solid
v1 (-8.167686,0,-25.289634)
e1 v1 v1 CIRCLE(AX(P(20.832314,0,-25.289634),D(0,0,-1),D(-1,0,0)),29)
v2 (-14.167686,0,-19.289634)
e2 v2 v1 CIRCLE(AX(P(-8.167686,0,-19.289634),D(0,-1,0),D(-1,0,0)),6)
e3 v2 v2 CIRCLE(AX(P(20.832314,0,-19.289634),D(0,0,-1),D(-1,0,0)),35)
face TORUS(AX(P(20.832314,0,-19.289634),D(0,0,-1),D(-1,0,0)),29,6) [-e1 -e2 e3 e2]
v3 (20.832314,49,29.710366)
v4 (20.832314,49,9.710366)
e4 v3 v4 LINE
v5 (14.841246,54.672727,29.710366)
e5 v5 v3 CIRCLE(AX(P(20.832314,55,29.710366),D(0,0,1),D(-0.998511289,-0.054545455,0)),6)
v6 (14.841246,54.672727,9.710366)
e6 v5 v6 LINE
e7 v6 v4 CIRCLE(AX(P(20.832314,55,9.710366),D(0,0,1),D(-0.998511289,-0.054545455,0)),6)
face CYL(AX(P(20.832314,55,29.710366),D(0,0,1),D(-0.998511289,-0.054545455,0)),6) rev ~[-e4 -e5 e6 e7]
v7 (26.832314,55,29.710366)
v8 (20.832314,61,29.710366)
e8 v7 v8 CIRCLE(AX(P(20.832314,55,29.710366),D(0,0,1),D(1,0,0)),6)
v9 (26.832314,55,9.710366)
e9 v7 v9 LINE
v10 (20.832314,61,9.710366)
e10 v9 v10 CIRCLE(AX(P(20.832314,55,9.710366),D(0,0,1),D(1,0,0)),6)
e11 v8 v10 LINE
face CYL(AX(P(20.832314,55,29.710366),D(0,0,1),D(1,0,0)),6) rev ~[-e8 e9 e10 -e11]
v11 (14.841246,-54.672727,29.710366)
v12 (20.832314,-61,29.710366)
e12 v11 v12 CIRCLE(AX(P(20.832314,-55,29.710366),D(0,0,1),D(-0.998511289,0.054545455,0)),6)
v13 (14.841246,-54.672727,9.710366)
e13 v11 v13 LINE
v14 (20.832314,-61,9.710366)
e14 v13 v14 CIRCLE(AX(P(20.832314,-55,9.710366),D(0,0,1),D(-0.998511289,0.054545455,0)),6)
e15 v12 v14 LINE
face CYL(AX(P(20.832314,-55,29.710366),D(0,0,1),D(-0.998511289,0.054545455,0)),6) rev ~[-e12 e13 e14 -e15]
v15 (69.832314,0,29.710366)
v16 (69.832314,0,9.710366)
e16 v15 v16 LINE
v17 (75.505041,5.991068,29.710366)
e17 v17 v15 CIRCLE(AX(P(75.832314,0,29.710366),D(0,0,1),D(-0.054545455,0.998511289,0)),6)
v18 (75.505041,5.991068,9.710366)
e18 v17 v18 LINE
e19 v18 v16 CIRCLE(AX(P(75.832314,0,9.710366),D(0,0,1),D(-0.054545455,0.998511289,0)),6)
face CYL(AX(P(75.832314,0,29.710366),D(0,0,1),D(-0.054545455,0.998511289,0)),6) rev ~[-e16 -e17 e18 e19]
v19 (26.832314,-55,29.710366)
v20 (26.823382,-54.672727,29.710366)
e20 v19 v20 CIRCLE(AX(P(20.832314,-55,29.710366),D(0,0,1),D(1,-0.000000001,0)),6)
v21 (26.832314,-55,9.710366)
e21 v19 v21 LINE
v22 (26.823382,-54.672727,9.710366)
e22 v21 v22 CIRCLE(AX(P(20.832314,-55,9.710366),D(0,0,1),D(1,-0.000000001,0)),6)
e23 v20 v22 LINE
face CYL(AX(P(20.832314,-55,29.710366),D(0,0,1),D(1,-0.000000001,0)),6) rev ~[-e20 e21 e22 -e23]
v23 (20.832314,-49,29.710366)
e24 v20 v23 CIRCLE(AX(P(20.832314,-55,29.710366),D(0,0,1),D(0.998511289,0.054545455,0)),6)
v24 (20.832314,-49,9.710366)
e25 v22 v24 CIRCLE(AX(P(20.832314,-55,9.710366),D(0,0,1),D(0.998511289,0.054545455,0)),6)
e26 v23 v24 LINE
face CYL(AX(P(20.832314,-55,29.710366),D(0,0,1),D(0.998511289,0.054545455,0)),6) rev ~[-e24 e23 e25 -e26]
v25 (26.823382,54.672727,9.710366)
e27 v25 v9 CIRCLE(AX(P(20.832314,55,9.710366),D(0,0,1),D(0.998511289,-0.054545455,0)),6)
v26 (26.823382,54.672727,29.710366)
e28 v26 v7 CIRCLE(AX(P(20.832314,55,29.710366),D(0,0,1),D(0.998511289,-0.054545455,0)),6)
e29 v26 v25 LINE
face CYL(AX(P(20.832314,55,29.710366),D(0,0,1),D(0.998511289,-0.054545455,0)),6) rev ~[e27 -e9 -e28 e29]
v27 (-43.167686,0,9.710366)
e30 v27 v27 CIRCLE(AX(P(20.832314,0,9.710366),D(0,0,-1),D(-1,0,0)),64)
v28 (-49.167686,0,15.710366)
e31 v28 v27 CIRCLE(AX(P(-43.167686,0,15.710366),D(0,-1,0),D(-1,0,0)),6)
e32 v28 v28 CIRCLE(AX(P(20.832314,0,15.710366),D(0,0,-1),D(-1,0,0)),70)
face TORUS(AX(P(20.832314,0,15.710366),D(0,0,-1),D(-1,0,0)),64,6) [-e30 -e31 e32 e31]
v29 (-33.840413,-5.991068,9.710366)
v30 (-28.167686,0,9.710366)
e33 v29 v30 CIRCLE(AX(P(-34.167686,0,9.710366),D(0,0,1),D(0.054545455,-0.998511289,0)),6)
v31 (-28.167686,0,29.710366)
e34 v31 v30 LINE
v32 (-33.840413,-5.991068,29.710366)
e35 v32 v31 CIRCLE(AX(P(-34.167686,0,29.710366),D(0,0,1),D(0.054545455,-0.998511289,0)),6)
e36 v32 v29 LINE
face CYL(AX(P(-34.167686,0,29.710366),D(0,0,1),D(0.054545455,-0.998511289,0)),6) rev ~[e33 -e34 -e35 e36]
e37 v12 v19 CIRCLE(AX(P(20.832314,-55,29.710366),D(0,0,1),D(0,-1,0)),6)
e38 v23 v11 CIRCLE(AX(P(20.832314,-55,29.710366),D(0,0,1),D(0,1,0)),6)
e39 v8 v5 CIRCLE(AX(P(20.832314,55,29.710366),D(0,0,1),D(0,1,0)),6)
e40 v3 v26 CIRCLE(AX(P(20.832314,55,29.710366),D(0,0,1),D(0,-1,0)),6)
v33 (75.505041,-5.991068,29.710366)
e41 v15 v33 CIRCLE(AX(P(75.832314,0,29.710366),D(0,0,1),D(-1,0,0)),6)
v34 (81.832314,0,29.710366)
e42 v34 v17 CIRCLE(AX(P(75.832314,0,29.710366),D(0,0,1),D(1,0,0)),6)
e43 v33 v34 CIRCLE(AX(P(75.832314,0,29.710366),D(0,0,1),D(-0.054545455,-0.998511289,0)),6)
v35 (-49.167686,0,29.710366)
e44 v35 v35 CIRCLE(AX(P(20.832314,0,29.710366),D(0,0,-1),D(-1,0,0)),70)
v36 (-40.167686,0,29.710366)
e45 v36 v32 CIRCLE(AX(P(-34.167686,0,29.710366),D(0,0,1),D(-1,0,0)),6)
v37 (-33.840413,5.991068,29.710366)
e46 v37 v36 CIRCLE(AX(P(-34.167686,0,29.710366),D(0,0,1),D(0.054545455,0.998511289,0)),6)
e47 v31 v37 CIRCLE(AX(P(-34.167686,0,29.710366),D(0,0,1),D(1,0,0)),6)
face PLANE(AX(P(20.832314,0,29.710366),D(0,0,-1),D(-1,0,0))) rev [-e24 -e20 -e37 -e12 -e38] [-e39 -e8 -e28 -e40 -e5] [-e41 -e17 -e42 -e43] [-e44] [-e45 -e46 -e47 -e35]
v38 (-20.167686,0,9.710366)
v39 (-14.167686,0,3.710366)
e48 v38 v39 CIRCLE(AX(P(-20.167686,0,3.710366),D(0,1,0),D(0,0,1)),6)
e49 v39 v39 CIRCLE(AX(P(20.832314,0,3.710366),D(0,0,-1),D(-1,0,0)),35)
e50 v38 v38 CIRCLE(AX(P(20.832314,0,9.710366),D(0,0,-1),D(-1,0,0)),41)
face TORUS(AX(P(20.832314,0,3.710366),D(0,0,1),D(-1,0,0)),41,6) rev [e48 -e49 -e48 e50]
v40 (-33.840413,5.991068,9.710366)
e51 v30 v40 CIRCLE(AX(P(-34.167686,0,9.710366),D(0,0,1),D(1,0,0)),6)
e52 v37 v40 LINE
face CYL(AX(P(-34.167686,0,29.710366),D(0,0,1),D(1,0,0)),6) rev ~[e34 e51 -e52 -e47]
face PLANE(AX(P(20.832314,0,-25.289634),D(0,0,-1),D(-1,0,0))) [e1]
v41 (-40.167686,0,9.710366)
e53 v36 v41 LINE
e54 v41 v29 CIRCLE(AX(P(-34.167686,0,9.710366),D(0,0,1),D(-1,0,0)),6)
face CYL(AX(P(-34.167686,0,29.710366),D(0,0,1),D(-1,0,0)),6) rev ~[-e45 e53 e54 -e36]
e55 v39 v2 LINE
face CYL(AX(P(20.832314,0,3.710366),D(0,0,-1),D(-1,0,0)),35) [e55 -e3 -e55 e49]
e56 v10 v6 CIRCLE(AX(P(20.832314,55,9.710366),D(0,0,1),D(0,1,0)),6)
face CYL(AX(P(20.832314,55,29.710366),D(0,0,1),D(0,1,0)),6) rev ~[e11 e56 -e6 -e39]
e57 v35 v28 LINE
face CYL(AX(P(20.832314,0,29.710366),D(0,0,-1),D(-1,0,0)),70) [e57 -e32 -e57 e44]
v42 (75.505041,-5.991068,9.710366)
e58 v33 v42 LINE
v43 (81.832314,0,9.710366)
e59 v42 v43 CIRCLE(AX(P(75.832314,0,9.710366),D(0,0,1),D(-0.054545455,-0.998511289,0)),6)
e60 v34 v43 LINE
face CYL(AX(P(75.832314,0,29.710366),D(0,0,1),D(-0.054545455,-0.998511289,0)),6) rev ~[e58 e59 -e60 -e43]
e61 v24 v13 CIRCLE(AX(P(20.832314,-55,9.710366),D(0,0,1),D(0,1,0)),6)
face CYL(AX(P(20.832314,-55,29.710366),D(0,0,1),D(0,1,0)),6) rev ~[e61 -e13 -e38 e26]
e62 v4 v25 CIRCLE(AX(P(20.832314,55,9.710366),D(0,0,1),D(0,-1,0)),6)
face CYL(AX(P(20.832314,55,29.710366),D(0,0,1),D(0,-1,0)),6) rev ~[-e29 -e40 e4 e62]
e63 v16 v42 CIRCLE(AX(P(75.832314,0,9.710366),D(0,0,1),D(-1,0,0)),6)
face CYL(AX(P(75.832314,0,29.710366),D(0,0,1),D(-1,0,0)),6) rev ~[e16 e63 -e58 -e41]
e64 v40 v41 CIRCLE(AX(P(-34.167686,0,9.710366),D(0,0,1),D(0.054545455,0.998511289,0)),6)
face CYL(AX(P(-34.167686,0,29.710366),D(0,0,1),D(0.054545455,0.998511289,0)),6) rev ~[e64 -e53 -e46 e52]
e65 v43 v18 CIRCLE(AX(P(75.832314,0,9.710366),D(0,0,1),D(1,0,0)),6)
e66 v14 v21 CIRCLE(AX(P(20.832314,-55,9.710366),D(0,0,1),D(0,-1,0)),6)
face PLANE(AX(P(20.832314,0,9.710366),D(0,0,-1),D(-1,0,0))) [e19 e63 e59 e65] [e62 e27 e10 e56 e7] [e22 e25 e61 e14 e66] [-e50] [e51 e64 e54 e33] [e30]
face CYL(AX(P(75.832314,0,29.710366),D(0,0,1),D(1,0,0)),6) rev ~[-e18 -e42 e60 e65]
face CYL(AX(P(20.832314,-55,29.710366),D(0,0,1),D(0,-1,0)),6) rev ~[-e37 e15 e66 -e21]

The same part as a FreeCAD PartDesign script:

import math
import FreeCAD as App
import Part
import Sketcher

V = App.Vector
Q = App.Units.Quantity

doc = App.newDocument("Part")
body = doc.addObject("PartDesign::Body", "Body")

sketch1 = body.newObject("Sketcher::SketchObject", "Sketch")
sketch1.AttachmentSupport = (doc.getObject("XZ_Plane"), [""])
sketch1.MapMode = "FlatFace"
sketch1.addGeometry(Part.LineSegment(V(20.832314, 29.710366, 0), V(-49.167686, 29.710366, 0)), False)
sketch1.addGeometry(Part.LineSegment(V(-49.167686, 29.710366, 0), V(-49.167686, 15.710366, 0)), False)
sketch1.addGeometry(Part.ArcOfCircle(Part.Circle(V(-43.167686, 15.710366, 0), V(0, 0, 1), 6), math.radians(180), math.radians(270)), False)
sketch1.addGeometry(Part.LineSegment(V(-43.167686, 9.710366, 0), V(-20.167686, 9.710366, 0)), False)
sketch1.addGeometry(Part.ArcOfCircle(Part.Circle(V(-20.167686, 3.710366, 0), V(0, 0, 1), 6), math.radians(0), math.radians(90)), False)
sketch1.addGeometry(Part.LineSegment(V(-14.167686, 3.710366, 0), V(-14.167686, -19.289634, 0)), False)
sketch1.addGeometry(Part.ArcOfCircle(Part.Circle(V(-8.167686, -19.289634, 0), V(0, 0, 1), 6), math.radians(180), math.radians(270)), False)
sketch1.addGeometry(Part.LineSegment(V(-8.167686, -25.289634, 0), V(20.832314, -25.289634, 0)), False)
sketch1.addGeometry(Part.LineSegment(V(20.832314, -25.289634, 0), V(20.832314, 29.710366, 0)), False)
sketch1.addGeometry(Part.LineSegment(V(20.832314, 29.710366, 0), V(20.832314, -25.289634, 0)), True)
sketch1.addConstraint(Sketcher.Constraint("Coincident", 0, 2, 1, 1))
sketch1.addConstraint(Sketcher.Constraint("Tangent", 1, 2, 2, 1))
sketch1.addConstraint(Sketcher.Constraint("Tangent", 2, 2, 3, 1))
sketch1.addConstraint(Sketcher.Constraint("Tangent", 3, 2, 4, 2))
sketch1.addConstraint(Sketcher.Constraint("Tangent", 4, 1, 5, 1))
sketch1.addConstraint(Sketcher.Constraint("Tangent", 5, 2, 6, 1))
sketch1.addConstraint(Sketcher.Constraint("Tangent", 6, 2, 7, 1))
sketch1.addConstraint(Sketcher.Constraint("Coincident", 7, 2, 8, 1))
sketch1.addConstraint(Sketcher.Constraint("Coincident", 8, 2, 0, 1))
sketch1.addConstraint(Sketcher.Constraint("Horizontal", 0))
sketch1.addConstraint(Sketcher.Constraint("Vertical", 1))
sketch1.addConstraint(Sketcher.Constraint("Horizontal", 3))
sketch1.addConstraint(Sketcher.Constraint("Vertical", 5))
sketch1.addConstraint(Sketcher.Constraint("Horizontal", 7))
sketch1.addConstraint(Sketcher.Constraint("Vertical", 8))
sketch1.addConstraint(Sketcher.Constraint("Vertical", 9))
sketch1.addConstraint(Sketcher.Constraint("Coincident", 9, 1, 8, 2))
sketch1.addConstraint(Sketcher.Constraint("Equal", 2, 4))
sketch1.addConstraint(Sketcher.Constraint("Equal", 4, 6))
sketch1.addConstraint(Sketcher.Constraint("Horizontal", 6, 2, 9, 2))
sketch1.addConstraint(Sketcher.Constraint("Equal", 3, 5))
sketch1.addConstraint(Sketcher.Constraint("Radius", 2, Q("6 mm")))
sketch1.addConstraint(Sketcher.Constraint("DistanceX", 0, 2, 0, 1, Q("70 mm")))
sketch1.addConstraint(Sketcher.Constraint("DistanceX", 3, 1, 3, 2, Q("23 mm")))
sketch1.addConstraint(Sketcher.Constraint("DistanceY", 1, 2, 1, 1, Q("14 mm")))
sketch1.addConstraint(Sketcher.Constraint("DistanceX", 2, 3, -1, 1, Q("43.167686 mm")))
sketch1.addConstraint(Sketcher.Constraint("DistanceY", -1, 1, 2, 3, Q("15.710366 mm")))
revolution = body.newObject("PartDesign::Revolution", "Revolution")
revolution.Profile = sketch1
revolution.ReferenceAxis = (sketch1, ["Axis0"])
revolution.Angle = 360

sketch2 = body.newObject("Sketcher::SketchObject", "Sketch001")
sketch2.AttachmentSupport = (doc.getObject("XY_Plane"), [""])
sketch2.MapMode = "FlatFace"
sketch2.AttachmentOffset = App.Placement(V(0, 0, 29.710366), App.Rotation())
sketch2.addGeometry(Part.ArcOfCircle(Part.Circle(V(20.832314, 55, 0), V(0, 0, 1), 6), math.radians(-3.126776), math.radians(0)), False)
sketch2.addGeometry(Part.ArcOfCircle(Part.Circle(V(20.832314, 55, 0), V(0, 0, 1), 6), math.radians(0), math.radians(90)), False)
sketch2.addGeometry(Part.ArcOfCircle(Part.Circle(V(20.832314, 55, 0), V(0, 0, 1), 6), math.radians(90), math.radians(183.126776)), False)
sketch2.addGeometry(Part.ArcOfCircle(Part.Circle(V(20.832314, 55, 0), V(0, 0, 1), 6), math.radians(-176.873224), math.radians(-90)), False)
sketch2.addGeometry(Part.ArcOfCircle(Part.Circle(V(20.832314, 55, 0), V(0, 0, 1), 6), math.radians(-90), math.radians(-3.126776)), False)
sketch2.addGeometry(Part.ArcOfCircle(Part.Circle(V(-34.167686, 0, 0), V(0, 0, 1), 6), math.radians(-86.873224), math.radians(0)), False)
sketch2.addGeometry(Part.ArcOfCircle(Part.Circle(V(-34.167686, 0, 0), V(0, 0, 1), 6), math.radians(0), math.radians(86.873224)), False)
sketch2.addGeometry(Part.ArcOfCircle(Part.Circle(V(-34.167686, 0, 0), V(0, 0, 1), 6), math.radians(86.873224), math.radians(180)), False)
sketch2.addGeometry(Part.ArcOfCircle(Part.Circle(V(-34.167686, 0, 0), V(0, 0, 1), 6), math.radians(180), math.radians(273.126776)), False)
sketch2.addGeometry(Part.ArcOfCircle(Part.Circle(V(20.832314, -55, 0), V(0, 0, 1), 6), math.radians(90), math.radians(176.873224)), False)
sketch2.addGeometry(Part.ArcOfCircle(Part.Circle(V(20.832314, -55, 0), V(0, 0, 1), 6), math.radians(176.873224), math.radians(270)), False)
sketch2.addGeometry(Part.ArcOfCircle(Part.Circle(V(20.832314, -55, 0), V(0, 0, 1), 6), math.radians(-90), math.radians(0)), False)
sketch2.addGeometry(Part.ArcOfCircle(Part.Circle(V(20.832314, -55, 0), V(0, 0, 1), 6), math.radians(0), math.radians(3.126776)), False)
sketch2.addGeometry(Part.ArcOfCircle(Part.Circle(V(20.832314, -55, 0), V(0, 0, 1), 6), math.radians(3.126776), math.radians(90)), False)
sketch2.addGeometry(Part.ArcOfCircle(Part.Circle(V(75.832314, 0, 0), V(0, 0, 1), 6), math.radians(93.126776), math.radians(180)), False)
sketch2.addGeometry(Part.ArcOfCircle(Part.Circle(V(75.832314, 0, 0), V(0, 0, 1), 6), math.radians(180), math.radians(266.873224)), False)
sketch2.addGeometry(Part.ArcOfCircle(Part.Circle(V(75.832314, 0, 0), V(0, 0, 1), 6), math.radians(-93.126776), math.radians(0)), False)
sketch2.addGeometry(Part.ArcOfCircle(Part.Circle(V(75.832314, 0, 0), V(0, 0, 1), 6), math.radians(0), math.radians(93.126776)), False)
sketch2.addConstraint(Sketcher.Constraint("Tangent", 0, 2, 1, 1))
sketch2.addConstraint(Sketcher.Constraint("Tangent", 1, 2, 2, 1))
sketch2.addConstraint(Sketcher.Constraint("Tangent", 2, 2, 3, 1))
sketch2.addConstraint(Sketcher.Constraint("Tangent", 3, 2, 4, 1))
sketch2.addConstraint(Sketcher.Constraint("Tangent", 4, 2, 0, 1))
sketch2.addConstraint(Sketcher.Constraint("Tangent", 5, 2, 6, 1))
sketch2.addConstraint(Sketcher.Constraint("Tangent", 6, 2, 7, 1))
sketch2.addConstraint(Sketcher.Constraint("Tangent", 7, 2, 8, 1))
sketch2.addConstraint(Sketcher.Constraint("Tangent", 8, 2, 5, 1))
sketch2.addConstraint(Sketcher.Constraint("Tangent", 9, 2, 10, 1))
sketch2.addConstraint(Sketcher.Constraint("Tangent", 10, 2, 11, 1))
sketch2.addConstraint(Sketcher.Constraint("Tangent", 11, 2, 12, 1))
sketch2.addConstraint(Sketcher.Constraint("Tangent", 12, 2, 13, 1))
sketch2.addConstraint(Sketcher.Constraint("Tangent", 13, 2, 9, 1))
sketch2.addConstraint(Sketcher.Constraint("Tangent", 14, 2, 15, 1))
sketch2.addConstraint(Sketcher.Constraint("Tangent", 15, 2, 16, 1))
sketch2.addConstraint(Sketcher.Constraint("Tangent", 16, 2, 17, 1))
sketch2.addConstraint(Sketcher.Constraint("Tangent", 17, 2, 14, 1))
sketch2.addConstraint(Sketcher.Constraint("Coincident", 2, 3, 0, 3))
sketch2.addConstraint(Sketcher.Constraint("Coincident", 11, 3, 9, 3))
sketch2.addConstraint(Sketcher.Constraint("Equal", 4, 5))
sketch2.addConstraint(Sketcher.Constraint("Equal", 5, 6))
sketch2.addConstraint(Sketcher.Constraint("Equal", 8, 9))
sketch2.addConstraint(Sketcher.Constraint("Equal", 13, 14))
sketch2.addConstraint(Sketcher.Constraint("Equal", 14, 15))
sketch2.addConstraint(Sketcher.Constraint("Symmetric", 0, 3, 9, 3, -1))
sketch2.addConstraint(Sketcher.Constraint("Symmetric", 6, 2, 8, 2, -1))
sketch2.addConstraint(Sketcher.Constraint("Symmetric", 15, 2, 17, 2, -1))
sketch2.addConstraint(Sketcher.Constraint("PointOnObject", 5, 2, -1))
sketch2.addConstraint(Sketcher.Constraint("PointOnObject", 7, 2, -1))
sketch2.addConstraint(Sketcher.Constraint("PointOnObject", 14, 2, -1))
sketch2.addConstraint(Sketcher.Constraint("PointOnObject", 16, 2, -1))
sketch2.addConstraint(Sketcher.Constraint("Horizontal", 4, 3, 0, 2))
sketch2.addConstraint(Sketcher.Constraint("Horizontal", 2, 2, 4, 2))
sketch2.addConstraint(Sketcher.Constraint("Horizontal", 13, 3, 11, 2))
sketch2.addConstraint(Sketcher.Constraint("Horizontal", 9, 2, 12, 2))
sketch2.addConstraint(Sketcher.Constraint("Horizontal", 8, 2, 15, 2))
sketch2.addConstraint(Sketcher.Constraint("Vertical", 13, 3, 1, 2))
sketch2.addConstraint(Sketcher.Constraint("Vertical", 1, 2, 3, 2))
sketch2.addConstraint(Sketcher.Constraint("Vertical", 2, 2, 9, 2))
sketch2.addConstraint(Sketcher.Constraint("Vertical", 3, 2, 10, 2))
sketch2.addConstraint(Sketcher.Constraint("Vertical", 10, 2, 13, 2))
sketch2.addConstraint(Sketcher.Constraint("Radius", 0, Q("6 mm")))
sketch2.addConstraint(Sketcher.Constraint("DistanceY", -1, 1, 0, 3, Q("55 mm")))
sketch2.addConstraint(Sketcher.Constraint("DistanceX", 5, 3, 1, 3, Q("55 mm")))
sketch2.addConstraint(Sketcher.Constraint("DistanceX", 0, 3, 14, 3, Q("55 mm")))
sketch2.addConstraint(Sketcher.Constraint("DistanceX", -1, 1, 4, 2, Q("26.823382 mm")))
sketch2.addConstraint(Sketcher.Constraint("DistanceX", -1, 1, 15, 2, Q("75.505041 mm")))
sketch2.addConstraint(Sketcher.Constraint("DistanceX", -1, 1, 0, 3, Q("20.832314 mm")))
pocket1 = body.newObject("PartDesign::Pocket", "Pocket")
pocket1.Profile = sketch2
pocket1.Type = "ThroughAll"

doc.recompute()
